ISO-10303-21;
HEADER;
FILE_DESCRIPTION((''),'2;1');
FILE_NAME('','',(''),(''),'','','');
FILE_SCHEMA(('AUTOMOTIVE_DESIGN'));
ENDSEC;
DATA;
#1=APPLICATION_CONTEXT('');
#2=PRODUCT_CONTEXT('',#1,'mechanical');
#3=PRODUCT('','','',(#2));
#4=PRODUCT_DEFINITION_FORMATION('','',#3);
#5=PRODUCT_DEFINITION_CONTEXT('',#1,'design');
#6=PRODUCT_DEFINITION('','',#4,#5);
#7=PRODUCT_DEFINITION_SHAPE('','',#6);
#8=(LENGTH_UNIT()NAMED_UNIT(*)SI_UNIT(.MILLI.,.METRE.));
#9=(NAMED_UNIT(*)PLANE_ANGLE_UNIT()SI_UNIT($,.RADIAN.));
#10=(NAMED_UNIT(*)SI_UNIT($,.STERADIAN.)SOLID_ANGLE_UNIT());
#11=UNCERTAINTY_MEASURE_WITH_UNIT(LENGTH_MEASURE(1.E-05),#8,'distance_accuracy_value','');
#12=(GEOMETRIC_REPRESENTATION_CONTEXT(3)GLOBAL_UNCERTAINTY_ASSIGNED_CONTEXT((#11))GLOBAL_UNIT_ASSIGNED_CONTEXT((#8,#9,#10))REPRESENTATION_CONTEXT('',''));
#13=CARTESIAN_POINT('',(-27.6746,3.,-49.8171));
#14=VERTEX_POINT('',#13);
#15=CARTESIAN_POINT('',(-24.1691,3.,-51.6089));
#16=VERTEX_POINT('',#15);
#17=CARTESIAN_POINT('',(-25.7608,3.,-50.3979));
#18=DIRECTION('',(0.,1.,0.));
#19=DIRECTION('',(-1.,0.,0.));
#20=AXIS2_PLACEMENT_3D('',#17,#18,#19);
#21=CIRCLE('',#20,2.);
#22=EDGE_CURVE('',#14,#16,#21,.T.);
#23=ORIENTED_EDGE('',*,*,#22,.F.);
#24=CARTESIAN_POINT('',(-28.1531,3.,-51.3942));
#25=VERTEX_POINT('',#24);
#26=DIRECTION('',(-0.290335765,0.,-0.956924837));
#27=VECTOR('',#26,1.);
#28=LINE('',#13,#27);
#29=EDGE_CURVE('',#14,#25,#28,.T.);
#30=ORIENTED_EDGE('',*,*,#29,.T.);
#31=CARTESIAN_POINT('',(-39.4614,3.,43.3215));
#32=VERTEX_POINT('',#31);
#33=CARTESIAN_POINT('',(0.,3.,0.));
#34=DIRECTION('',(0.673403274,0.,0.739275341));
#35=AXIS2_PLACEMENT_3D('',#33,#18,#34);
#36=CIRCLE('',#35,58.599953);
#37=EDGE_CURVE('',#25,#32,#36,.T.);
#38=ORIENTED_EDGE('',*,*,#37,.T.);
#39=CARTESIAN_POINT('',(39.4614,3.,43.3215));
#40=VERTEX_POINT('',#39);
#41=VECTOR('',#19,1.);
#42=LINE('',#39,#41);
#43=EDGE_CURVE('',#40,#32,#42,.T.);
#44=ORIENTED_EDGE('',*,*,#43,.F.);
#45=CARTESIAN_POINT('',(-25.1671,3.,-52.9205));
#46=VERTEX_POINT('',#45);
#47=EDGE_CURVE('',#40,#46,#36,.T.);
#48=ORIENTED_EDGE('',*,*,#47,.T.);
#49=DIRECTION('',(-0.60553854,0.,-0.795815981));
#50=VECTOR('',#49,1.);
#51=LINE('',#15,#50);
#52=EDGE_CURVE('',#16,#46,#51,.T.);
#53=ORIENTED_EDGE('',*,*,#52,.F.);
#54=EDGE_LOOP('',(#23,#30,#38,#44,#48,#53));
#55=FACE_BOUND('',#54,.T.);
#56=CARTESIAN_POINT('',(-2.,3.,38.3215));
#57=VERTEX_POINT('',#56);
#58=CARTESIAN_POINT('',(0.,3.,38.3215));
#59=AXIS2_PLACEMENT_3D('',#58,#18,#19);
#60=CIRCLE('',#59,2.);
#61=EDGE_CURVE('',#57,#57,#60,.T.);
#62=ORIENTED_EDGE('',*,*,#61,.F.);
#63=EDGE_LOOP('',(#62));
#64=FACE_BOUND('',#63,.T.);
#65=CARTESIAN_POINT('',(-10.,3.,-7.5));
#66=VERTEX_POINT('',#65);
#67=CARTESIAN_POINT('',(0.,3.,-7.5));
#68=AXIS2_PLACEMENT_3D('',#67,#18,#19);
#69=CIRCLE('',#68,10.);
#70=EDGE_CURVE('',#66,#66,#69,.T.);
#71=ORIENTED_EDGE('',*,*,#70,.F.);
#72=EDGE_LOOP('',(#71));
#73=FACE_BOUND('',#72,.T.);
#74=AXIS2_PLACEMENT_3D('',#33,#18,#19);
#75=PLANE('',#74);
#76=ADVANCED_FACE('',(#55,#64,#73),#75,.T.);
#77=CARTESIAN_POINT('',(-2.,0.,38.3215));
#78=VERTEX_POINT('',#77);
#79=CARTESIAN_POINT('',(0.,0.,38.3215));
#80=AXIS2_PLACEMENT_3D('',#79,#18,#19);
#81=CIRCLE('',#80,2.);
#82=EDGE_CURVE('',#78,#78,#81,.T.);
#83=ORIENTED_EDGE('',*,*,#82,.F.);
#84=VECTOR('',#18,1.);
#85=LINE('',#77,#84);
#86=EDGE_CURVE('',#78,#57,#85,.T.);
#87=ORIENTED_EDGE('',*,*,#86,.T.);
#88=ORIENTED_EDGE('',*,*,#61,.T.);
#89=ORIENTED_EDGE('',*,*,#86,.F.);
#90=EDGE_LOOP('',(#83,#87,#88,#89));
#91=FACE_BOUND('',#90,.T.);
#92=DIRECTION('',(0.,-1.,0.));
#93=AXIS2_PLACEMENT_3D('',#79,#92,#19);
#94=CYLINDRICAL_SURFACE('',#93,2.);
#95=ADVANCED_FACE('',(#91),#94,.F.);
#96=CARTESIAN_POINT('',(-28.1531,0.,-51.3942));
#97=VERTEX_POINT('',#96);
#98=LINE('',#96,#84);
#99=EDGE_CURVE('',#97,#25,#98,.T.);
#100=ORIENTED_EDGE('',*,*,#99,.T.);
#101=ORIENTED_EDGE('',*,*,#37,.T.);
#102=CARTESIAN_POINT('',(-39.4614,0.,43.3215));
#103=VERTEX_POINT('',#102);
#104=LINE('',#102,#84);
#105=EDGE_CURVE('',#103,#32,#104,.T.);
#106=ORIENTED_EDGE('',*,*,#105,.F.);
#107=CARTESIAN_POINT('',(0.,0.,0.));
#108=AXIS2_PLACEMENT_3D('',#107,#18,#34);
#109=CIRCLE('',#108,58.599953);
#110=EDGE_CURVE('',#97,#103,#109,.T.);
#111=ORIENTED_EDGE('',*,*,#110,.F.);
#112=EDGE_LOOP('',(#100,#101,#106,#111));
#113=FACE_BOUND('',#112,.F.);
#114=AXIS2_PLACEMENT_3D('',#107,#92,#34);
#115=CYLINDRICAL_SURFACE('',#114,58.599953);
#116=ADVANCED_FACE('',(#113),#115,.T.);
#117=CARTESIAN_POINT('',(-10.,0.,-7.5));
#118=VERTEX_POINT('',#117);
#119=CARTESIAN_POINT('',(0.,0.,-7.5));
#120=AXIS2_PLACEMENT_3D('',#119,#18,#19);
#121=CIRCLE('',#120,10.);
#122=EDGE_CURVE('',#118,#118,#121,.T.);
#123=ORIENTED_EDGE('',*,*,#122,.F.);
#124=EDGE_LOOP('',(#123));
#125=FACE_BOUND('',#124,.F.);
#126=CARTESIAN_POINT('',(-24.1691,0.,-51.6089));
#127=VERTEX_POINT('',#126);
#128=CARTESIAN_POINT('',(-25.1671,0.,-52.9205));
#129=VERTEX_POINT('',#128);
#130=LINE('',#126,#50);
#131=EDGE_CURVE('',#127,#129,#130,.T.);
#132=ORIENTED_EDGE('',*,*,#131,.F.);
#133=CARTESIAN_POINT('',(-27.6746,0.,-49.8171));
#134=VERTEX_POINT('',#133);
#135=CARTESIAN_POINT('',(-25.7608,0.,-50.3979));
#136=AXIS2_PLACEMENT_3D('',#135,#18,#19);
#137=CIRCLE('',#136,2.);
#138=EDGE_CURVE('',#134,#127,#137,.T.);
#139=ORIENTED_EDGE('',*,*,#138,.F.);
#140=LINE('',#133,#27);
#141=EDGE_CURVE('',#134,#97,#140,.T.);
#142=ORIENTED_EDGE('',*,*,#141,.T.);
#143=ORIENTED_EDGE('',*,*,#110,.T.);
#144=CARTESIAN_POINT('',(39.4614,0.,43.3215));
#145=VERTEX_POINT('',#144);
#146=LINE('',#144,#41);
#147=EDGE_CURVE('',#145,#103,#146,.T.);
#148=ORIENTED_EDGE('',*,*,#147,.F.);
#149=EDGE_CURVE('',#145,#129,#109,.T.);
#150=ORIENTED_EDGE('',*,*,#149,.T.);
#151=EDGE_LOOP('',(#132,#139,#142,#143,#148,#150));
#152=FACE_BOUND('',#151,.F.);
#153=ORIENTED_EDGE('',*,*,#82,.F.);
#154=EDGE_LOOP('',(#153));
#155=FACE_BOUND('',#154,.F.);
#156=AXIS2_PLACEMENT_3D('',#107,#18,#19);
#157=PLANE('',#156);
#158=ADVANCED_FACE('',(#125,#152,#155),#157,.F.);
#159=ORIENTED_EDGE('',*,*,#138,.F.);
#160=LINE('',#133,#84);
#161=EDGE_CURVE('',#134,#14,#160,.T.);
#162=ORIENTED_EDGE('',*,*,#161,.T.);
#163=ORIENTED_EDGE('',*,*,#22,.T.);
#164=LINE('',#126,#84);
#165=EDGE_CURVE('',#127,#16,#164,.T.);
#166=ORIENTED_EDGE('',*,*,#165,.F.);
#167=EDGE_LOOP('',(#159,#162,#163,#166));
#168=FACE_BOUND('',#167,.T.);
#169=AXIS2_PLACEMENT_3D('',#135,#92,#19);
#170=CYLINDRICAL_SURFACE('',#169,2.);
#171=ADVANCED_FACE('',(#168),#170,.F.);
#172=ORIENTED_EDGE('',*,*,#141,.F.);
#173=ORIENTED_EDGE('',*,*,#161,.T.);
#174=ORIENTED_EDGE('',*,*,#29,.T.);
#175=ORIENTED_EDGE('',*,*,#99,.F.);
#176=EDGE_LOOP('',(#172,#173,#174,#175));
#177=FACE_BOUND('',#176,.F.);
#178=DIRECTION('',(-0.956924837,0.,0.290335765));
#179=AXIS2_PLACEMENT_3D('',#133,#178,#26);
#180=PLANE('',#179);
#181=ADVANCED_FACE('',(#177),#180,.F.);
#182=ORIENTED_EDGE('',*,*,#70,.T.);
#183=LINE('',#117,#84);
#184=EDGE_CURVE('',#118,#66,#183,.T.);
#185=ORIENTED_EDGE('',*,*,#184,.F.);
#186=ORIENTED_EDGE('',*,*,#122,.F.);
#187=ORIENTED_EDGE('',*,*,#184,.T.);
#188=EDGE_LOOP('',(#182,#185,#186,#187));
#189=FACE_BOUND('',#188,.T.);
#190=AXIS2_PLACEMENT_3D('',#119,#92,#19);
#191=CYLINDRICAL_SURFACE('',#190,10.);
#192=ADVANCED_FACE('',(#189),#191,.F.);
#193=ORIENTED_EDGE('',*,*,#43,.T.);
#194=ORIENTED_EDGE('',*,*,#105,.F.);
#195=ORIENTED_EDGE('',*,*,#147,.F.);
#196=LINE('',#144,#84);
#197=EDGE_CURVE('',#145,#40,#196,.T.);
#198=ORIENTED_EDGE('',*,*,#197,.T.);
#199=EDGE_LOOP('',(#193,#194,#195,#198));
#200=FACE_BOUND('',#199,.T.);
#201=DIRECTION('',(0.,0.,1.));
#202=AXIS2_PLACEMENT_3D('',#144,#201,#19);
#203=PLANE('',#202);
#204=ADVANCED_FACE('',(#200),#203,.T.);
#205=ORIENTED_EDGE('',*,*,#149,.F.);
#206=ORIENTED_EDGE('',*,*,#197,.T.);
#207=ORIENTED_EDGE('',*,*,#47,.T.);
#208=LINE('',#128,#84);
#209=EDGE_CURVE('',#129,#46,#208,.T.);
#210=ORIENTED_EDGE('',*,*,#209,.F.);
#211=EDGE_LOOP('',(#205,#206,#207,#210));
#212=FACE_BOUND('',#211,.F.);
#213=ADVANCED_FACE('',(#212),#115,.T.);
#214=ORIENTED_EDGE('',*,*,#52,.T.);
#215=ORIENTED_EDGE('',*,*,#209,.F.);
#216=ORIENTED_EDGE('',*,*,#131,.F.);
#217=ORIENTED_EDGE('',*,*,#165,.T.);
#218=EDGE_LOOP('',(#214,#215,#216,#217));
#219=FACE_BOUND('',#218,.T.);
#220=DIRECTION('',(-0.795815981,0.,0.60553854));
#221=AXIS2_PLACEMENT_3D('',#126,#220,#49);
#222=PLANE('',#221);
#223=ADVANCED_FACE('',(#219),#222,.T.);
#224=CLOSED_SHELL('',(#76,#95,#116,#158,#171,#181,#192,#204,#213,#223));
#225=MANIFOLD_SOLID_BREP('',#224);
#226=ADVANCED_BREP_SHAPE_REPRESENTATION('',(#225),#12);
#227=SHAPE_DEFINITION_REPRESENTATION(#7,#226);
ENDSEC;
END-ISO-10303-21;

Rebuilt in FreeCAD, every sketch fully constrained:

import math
import FreeCAD as App
import Part
import Sketcher
Q = App.Units.Quantity

doc = App.newDocument("Part")
body = doc.addObject("PartDesign::Body", "Body")

sketch1 = doc.addObject("Sketcher::SketchObject", "Sketch")
body.addObject(sketch1)
sketch1.AttachmentSupport = (doc.XZ_Plane, [""])
sketch1.MapMode = "FlatFace"
sketch1.addGeometry([
    Part.LineSegment(App.Vector(-39.5, 43.3, 0), App.Vector(39.5, 43.3, 0)),
    Part.ArcOfCircle(Part.Circle(App.Vector(0, 0, 0), App.Vector(0, 0, 1), 58.6), math.radians(-115), math.radians(48)),
    Part.LineSegment(App.Vector(-25.2, -52.9, 0), App.Vector(-24.2, -51.6, 0)),
    Part.ArcOfCircle(Part.Circle(App.Vector(-25.8, -50.4, 0), App.Vector(0, 0, 1), 2), math.radians(-37), math.radians(163)),
    Part.LineSegment(App.Vector(-27.7, -49.8, 0), App.Vector(-28.2, -51.4, 0)),
    Part.ArcOfCircle(Part.Circle(App.Vector(0, 0, 0), App.Vector(0, 0, 1), 58.6), math.radians(132), math.radians(241)),
    Part.Circle(App.Vector(0, -7.5, 0), App.Vector(0, 0, 1), 10),
    Part.Circle(App.Vector(0, 38.3, 0), App.Vector(0, 0, 1), 2),
], False)
sketch1.addConstraint([
    Sketcher.Constraint("Coincident", 0, 2, 1, 2),
    Sketcher.Constraint("Coincident", 1, 1, 2, 1),
    Sketcher.Constraint("Tangent", 2, 2, 3, 1),
    Sketcher.Constraint("Tangent", 3, 2, 4, 1),
    Sketcher.Constraint("Coincident", 4, 2, 5, 2),
    Sketcher.Constraint("Coincident", 5, 1, 0, 1),
    Sketcher.Constraint("Horizontal", 0),
    Sketcher.Constraint("Coincident", 1, 3, -1, 1),
    Sketcher.Constraint("Coincident", 5, 3, -1, 1),
    Sketcher.Constraint("Equal", 1, 5),
    Sketcher.Constraint("Equal", 3, 7),
    Sketcher.Constraint("PointOnObject", 6, 3, -2),
    Sketcher.Constraint("PointOnObject", 7, 3, -2),
    Sketcher.Constraint("Equal", 2, 4),
    Sketcher.Constraint("Diameter", 6, Q("20 mm")),
    Sketcher.Constraint("Diameter", 7, Q("4 mm")),
    Sketcher.Constraint("DistanceY", 7, 3, 0, 2, Q("5 mm")),
    Sketcher.Constraint("DistanceY", 6, 3, -1, 1, Q("7.5 mm")),
    Sketcher.Constraint("Radius", 1, Q("58.6 mm")),
    Sketcher.Constraint("Distance", 2, Q("1.648 mm")),
    Sketcher.Constraint("DistanceX", 0, 1, 0, 2, Q("78.9228 mm")),
    Sketcher.Constraint("DistanceY", 3, 3, -1, 1, Q("50.398 mm")),
    Sketcher.Constraint("DistanceX", 1, 1, -1, 1, Q("25.167 mm")),
])
pad1 = doc.addObject("PartDesign::Pad", "Pad")
body.addObject(pad1)
pad1.Profile = sketch1
pad1.Length = 3
pad1.Reversed = True

doc.recompute()
